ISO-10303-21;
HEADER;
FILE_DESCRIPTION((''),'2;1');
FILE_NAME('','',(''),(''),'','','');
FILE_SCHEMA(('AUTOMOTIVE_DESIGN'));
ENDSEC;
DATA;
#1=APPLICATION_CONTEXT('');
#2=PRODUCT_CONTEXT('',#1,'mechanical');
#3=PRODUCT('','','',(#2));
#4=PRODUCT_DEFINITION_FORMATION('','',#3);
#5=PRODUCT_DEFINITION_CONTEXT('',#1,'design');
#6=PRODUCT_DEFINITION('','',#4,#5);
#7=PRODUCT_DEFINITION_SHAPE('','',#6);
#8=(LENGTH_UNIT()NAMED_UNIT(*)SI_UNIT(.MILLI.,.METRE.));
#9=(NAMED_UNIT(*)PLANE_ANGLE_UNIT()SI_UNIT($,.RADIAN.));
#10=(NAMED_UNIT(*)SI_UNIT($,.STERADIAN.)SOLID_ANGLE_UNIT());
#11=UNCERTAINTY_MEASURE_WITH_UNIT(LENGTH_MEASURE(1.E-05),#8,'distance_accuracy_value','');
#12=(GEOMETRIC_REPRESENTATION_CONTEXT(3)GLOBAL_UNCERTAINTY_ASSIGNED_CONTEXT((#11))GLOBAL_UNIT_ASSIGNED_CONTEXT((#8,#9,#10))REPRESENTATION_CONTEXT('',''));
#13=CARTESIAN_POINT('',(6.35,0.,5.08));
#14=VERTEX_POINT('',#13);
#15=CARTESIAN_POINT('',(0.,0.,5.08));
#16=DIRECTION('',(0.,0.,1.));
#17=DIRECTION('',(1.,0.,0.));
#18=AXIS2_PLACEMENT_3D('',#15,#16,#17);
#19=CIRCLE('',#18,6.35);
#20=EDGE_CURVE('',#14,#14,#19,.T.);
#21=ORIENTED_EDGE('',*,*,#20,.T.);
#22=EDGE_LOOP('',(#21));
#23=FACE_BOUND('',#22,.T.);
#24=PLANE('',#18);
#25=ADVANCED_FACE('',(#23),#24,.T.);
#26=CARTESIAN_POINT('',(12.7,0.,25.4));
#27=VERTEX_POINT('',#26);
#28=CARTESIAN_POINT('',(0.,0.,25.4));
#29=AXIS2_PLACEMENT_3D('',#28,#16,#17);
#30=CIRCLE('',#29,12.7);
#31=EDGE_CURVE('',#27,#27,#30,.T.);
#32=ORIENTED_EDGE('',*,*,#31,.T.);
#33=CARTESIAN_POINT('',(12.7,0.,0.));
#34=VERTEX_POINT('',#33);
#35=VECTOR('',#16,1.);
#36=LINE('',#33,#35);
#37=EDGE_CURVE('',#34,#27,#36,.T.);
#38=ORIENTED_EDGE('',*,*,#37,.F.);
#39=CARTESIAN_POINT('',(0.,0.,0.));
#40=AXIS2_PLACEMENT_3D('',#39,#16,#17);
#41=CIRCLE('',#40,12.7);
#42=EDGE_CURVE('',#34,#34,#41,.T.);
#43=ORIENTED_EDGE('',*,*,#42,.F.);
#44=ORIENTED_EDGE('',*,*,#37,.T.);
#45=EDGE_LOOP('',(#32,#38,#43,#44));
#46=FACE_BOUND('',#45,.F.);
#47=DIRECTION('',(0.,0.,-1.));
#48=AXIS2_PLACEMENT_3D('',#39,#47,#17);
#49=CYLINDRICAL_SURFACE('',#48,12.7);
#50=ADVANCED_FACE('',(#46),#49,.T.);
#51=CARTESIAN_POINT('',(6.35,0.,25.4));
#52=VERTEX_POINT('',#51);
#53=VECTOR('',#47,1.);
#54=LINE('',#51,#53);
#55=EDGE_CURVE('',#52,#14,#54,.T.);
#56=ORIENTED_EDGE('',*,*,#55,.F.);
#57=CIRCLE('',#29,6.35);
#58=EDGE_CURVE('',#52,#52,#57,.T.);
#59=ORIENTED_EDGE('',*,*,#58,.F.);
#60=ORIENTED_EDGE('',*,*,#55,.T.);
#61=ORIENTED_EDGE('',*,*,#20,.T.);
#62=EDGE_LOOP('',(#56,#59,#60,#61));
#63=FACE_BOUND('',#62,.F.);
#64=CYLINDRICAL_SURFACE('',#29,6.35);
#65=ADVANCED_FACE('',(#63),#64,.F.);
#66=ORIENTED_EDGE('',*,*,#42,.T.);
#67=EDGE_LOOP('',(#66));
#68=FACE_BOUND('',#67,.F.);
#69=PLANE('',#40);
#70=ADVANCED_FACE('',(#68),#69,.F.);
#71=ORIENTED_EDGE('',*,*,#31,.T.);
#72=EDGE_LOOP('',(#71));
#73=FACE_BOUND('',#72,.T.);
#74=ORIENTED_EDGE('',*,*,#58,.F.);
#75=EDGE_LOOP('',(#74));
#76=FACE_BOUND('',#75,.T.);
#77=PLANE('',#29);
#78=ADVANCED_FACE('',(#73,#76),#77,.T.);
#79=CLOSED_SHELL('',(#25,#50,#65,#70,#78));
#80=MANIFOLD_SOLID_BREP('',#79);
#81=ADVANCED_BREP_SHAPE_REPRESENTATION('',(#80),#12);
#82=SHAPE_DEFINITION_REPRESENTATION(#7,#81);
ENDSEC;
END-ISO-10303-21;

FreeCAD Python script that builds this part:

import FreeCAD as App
import Part
import Sketcher
Q = App.Units.Quantity

doc = App.newDocument("Part")
body = doc.addObject("PartDesign::Body", "Body")

sketch1 = body.newObject("Sketcher::SketchObject", "Sketch")
sketch1.AttachmentSupport = (doc.getObject("XY_Plane"), [""])
sketch1.MapMode = "FlatFace"
sketch1.addGeometry(Part.Circle(App.Vector(0, 0, 0), App.Vector(0, 0, 1), 13), False)
sketch1.addConstraint(Sketcher.Constraint("Coincident", 0, 3, -1, 1))
sketch1.addConstraint(Sketcher.Constraint("Diameter", 0, Q("1 in")))
pad1 = body.newObject("PartDesign::Pad", "Pad")
pad1.Profile = sketch1
pad1.Length = Q("1 in")

sketch2 = body.newObject("Sketcher::SketchObject", "Sketch001")
sketch2.AttachmentSupport = (doc.getObject("XY_Plane"), [""])
sketch2.MapMode = "FlatFace"
sketch2.AttachmentOffset = App.Placement(App.Vector(0, 0, 1 * 25.4), App.Rotation())
sketch2.addGeometry(Part.Circle(App.Vector(0, 0, 0), App.Vector(0, 0, 1), 6), False)
sketch2.addConstraint(Sketcher.Constraint("Coincident", 0, 3, -1, 1))
sketch2.addConstraint(Sketcher.Constraint("Diameter", 0, Q("0.5 in")))
pocket1 = body.newObject("PartDesign::Pocket", "Pocket")
pocket1.Profile = sketch2
pocket1.Length = Q("0.8 in")

doc.recompute()
